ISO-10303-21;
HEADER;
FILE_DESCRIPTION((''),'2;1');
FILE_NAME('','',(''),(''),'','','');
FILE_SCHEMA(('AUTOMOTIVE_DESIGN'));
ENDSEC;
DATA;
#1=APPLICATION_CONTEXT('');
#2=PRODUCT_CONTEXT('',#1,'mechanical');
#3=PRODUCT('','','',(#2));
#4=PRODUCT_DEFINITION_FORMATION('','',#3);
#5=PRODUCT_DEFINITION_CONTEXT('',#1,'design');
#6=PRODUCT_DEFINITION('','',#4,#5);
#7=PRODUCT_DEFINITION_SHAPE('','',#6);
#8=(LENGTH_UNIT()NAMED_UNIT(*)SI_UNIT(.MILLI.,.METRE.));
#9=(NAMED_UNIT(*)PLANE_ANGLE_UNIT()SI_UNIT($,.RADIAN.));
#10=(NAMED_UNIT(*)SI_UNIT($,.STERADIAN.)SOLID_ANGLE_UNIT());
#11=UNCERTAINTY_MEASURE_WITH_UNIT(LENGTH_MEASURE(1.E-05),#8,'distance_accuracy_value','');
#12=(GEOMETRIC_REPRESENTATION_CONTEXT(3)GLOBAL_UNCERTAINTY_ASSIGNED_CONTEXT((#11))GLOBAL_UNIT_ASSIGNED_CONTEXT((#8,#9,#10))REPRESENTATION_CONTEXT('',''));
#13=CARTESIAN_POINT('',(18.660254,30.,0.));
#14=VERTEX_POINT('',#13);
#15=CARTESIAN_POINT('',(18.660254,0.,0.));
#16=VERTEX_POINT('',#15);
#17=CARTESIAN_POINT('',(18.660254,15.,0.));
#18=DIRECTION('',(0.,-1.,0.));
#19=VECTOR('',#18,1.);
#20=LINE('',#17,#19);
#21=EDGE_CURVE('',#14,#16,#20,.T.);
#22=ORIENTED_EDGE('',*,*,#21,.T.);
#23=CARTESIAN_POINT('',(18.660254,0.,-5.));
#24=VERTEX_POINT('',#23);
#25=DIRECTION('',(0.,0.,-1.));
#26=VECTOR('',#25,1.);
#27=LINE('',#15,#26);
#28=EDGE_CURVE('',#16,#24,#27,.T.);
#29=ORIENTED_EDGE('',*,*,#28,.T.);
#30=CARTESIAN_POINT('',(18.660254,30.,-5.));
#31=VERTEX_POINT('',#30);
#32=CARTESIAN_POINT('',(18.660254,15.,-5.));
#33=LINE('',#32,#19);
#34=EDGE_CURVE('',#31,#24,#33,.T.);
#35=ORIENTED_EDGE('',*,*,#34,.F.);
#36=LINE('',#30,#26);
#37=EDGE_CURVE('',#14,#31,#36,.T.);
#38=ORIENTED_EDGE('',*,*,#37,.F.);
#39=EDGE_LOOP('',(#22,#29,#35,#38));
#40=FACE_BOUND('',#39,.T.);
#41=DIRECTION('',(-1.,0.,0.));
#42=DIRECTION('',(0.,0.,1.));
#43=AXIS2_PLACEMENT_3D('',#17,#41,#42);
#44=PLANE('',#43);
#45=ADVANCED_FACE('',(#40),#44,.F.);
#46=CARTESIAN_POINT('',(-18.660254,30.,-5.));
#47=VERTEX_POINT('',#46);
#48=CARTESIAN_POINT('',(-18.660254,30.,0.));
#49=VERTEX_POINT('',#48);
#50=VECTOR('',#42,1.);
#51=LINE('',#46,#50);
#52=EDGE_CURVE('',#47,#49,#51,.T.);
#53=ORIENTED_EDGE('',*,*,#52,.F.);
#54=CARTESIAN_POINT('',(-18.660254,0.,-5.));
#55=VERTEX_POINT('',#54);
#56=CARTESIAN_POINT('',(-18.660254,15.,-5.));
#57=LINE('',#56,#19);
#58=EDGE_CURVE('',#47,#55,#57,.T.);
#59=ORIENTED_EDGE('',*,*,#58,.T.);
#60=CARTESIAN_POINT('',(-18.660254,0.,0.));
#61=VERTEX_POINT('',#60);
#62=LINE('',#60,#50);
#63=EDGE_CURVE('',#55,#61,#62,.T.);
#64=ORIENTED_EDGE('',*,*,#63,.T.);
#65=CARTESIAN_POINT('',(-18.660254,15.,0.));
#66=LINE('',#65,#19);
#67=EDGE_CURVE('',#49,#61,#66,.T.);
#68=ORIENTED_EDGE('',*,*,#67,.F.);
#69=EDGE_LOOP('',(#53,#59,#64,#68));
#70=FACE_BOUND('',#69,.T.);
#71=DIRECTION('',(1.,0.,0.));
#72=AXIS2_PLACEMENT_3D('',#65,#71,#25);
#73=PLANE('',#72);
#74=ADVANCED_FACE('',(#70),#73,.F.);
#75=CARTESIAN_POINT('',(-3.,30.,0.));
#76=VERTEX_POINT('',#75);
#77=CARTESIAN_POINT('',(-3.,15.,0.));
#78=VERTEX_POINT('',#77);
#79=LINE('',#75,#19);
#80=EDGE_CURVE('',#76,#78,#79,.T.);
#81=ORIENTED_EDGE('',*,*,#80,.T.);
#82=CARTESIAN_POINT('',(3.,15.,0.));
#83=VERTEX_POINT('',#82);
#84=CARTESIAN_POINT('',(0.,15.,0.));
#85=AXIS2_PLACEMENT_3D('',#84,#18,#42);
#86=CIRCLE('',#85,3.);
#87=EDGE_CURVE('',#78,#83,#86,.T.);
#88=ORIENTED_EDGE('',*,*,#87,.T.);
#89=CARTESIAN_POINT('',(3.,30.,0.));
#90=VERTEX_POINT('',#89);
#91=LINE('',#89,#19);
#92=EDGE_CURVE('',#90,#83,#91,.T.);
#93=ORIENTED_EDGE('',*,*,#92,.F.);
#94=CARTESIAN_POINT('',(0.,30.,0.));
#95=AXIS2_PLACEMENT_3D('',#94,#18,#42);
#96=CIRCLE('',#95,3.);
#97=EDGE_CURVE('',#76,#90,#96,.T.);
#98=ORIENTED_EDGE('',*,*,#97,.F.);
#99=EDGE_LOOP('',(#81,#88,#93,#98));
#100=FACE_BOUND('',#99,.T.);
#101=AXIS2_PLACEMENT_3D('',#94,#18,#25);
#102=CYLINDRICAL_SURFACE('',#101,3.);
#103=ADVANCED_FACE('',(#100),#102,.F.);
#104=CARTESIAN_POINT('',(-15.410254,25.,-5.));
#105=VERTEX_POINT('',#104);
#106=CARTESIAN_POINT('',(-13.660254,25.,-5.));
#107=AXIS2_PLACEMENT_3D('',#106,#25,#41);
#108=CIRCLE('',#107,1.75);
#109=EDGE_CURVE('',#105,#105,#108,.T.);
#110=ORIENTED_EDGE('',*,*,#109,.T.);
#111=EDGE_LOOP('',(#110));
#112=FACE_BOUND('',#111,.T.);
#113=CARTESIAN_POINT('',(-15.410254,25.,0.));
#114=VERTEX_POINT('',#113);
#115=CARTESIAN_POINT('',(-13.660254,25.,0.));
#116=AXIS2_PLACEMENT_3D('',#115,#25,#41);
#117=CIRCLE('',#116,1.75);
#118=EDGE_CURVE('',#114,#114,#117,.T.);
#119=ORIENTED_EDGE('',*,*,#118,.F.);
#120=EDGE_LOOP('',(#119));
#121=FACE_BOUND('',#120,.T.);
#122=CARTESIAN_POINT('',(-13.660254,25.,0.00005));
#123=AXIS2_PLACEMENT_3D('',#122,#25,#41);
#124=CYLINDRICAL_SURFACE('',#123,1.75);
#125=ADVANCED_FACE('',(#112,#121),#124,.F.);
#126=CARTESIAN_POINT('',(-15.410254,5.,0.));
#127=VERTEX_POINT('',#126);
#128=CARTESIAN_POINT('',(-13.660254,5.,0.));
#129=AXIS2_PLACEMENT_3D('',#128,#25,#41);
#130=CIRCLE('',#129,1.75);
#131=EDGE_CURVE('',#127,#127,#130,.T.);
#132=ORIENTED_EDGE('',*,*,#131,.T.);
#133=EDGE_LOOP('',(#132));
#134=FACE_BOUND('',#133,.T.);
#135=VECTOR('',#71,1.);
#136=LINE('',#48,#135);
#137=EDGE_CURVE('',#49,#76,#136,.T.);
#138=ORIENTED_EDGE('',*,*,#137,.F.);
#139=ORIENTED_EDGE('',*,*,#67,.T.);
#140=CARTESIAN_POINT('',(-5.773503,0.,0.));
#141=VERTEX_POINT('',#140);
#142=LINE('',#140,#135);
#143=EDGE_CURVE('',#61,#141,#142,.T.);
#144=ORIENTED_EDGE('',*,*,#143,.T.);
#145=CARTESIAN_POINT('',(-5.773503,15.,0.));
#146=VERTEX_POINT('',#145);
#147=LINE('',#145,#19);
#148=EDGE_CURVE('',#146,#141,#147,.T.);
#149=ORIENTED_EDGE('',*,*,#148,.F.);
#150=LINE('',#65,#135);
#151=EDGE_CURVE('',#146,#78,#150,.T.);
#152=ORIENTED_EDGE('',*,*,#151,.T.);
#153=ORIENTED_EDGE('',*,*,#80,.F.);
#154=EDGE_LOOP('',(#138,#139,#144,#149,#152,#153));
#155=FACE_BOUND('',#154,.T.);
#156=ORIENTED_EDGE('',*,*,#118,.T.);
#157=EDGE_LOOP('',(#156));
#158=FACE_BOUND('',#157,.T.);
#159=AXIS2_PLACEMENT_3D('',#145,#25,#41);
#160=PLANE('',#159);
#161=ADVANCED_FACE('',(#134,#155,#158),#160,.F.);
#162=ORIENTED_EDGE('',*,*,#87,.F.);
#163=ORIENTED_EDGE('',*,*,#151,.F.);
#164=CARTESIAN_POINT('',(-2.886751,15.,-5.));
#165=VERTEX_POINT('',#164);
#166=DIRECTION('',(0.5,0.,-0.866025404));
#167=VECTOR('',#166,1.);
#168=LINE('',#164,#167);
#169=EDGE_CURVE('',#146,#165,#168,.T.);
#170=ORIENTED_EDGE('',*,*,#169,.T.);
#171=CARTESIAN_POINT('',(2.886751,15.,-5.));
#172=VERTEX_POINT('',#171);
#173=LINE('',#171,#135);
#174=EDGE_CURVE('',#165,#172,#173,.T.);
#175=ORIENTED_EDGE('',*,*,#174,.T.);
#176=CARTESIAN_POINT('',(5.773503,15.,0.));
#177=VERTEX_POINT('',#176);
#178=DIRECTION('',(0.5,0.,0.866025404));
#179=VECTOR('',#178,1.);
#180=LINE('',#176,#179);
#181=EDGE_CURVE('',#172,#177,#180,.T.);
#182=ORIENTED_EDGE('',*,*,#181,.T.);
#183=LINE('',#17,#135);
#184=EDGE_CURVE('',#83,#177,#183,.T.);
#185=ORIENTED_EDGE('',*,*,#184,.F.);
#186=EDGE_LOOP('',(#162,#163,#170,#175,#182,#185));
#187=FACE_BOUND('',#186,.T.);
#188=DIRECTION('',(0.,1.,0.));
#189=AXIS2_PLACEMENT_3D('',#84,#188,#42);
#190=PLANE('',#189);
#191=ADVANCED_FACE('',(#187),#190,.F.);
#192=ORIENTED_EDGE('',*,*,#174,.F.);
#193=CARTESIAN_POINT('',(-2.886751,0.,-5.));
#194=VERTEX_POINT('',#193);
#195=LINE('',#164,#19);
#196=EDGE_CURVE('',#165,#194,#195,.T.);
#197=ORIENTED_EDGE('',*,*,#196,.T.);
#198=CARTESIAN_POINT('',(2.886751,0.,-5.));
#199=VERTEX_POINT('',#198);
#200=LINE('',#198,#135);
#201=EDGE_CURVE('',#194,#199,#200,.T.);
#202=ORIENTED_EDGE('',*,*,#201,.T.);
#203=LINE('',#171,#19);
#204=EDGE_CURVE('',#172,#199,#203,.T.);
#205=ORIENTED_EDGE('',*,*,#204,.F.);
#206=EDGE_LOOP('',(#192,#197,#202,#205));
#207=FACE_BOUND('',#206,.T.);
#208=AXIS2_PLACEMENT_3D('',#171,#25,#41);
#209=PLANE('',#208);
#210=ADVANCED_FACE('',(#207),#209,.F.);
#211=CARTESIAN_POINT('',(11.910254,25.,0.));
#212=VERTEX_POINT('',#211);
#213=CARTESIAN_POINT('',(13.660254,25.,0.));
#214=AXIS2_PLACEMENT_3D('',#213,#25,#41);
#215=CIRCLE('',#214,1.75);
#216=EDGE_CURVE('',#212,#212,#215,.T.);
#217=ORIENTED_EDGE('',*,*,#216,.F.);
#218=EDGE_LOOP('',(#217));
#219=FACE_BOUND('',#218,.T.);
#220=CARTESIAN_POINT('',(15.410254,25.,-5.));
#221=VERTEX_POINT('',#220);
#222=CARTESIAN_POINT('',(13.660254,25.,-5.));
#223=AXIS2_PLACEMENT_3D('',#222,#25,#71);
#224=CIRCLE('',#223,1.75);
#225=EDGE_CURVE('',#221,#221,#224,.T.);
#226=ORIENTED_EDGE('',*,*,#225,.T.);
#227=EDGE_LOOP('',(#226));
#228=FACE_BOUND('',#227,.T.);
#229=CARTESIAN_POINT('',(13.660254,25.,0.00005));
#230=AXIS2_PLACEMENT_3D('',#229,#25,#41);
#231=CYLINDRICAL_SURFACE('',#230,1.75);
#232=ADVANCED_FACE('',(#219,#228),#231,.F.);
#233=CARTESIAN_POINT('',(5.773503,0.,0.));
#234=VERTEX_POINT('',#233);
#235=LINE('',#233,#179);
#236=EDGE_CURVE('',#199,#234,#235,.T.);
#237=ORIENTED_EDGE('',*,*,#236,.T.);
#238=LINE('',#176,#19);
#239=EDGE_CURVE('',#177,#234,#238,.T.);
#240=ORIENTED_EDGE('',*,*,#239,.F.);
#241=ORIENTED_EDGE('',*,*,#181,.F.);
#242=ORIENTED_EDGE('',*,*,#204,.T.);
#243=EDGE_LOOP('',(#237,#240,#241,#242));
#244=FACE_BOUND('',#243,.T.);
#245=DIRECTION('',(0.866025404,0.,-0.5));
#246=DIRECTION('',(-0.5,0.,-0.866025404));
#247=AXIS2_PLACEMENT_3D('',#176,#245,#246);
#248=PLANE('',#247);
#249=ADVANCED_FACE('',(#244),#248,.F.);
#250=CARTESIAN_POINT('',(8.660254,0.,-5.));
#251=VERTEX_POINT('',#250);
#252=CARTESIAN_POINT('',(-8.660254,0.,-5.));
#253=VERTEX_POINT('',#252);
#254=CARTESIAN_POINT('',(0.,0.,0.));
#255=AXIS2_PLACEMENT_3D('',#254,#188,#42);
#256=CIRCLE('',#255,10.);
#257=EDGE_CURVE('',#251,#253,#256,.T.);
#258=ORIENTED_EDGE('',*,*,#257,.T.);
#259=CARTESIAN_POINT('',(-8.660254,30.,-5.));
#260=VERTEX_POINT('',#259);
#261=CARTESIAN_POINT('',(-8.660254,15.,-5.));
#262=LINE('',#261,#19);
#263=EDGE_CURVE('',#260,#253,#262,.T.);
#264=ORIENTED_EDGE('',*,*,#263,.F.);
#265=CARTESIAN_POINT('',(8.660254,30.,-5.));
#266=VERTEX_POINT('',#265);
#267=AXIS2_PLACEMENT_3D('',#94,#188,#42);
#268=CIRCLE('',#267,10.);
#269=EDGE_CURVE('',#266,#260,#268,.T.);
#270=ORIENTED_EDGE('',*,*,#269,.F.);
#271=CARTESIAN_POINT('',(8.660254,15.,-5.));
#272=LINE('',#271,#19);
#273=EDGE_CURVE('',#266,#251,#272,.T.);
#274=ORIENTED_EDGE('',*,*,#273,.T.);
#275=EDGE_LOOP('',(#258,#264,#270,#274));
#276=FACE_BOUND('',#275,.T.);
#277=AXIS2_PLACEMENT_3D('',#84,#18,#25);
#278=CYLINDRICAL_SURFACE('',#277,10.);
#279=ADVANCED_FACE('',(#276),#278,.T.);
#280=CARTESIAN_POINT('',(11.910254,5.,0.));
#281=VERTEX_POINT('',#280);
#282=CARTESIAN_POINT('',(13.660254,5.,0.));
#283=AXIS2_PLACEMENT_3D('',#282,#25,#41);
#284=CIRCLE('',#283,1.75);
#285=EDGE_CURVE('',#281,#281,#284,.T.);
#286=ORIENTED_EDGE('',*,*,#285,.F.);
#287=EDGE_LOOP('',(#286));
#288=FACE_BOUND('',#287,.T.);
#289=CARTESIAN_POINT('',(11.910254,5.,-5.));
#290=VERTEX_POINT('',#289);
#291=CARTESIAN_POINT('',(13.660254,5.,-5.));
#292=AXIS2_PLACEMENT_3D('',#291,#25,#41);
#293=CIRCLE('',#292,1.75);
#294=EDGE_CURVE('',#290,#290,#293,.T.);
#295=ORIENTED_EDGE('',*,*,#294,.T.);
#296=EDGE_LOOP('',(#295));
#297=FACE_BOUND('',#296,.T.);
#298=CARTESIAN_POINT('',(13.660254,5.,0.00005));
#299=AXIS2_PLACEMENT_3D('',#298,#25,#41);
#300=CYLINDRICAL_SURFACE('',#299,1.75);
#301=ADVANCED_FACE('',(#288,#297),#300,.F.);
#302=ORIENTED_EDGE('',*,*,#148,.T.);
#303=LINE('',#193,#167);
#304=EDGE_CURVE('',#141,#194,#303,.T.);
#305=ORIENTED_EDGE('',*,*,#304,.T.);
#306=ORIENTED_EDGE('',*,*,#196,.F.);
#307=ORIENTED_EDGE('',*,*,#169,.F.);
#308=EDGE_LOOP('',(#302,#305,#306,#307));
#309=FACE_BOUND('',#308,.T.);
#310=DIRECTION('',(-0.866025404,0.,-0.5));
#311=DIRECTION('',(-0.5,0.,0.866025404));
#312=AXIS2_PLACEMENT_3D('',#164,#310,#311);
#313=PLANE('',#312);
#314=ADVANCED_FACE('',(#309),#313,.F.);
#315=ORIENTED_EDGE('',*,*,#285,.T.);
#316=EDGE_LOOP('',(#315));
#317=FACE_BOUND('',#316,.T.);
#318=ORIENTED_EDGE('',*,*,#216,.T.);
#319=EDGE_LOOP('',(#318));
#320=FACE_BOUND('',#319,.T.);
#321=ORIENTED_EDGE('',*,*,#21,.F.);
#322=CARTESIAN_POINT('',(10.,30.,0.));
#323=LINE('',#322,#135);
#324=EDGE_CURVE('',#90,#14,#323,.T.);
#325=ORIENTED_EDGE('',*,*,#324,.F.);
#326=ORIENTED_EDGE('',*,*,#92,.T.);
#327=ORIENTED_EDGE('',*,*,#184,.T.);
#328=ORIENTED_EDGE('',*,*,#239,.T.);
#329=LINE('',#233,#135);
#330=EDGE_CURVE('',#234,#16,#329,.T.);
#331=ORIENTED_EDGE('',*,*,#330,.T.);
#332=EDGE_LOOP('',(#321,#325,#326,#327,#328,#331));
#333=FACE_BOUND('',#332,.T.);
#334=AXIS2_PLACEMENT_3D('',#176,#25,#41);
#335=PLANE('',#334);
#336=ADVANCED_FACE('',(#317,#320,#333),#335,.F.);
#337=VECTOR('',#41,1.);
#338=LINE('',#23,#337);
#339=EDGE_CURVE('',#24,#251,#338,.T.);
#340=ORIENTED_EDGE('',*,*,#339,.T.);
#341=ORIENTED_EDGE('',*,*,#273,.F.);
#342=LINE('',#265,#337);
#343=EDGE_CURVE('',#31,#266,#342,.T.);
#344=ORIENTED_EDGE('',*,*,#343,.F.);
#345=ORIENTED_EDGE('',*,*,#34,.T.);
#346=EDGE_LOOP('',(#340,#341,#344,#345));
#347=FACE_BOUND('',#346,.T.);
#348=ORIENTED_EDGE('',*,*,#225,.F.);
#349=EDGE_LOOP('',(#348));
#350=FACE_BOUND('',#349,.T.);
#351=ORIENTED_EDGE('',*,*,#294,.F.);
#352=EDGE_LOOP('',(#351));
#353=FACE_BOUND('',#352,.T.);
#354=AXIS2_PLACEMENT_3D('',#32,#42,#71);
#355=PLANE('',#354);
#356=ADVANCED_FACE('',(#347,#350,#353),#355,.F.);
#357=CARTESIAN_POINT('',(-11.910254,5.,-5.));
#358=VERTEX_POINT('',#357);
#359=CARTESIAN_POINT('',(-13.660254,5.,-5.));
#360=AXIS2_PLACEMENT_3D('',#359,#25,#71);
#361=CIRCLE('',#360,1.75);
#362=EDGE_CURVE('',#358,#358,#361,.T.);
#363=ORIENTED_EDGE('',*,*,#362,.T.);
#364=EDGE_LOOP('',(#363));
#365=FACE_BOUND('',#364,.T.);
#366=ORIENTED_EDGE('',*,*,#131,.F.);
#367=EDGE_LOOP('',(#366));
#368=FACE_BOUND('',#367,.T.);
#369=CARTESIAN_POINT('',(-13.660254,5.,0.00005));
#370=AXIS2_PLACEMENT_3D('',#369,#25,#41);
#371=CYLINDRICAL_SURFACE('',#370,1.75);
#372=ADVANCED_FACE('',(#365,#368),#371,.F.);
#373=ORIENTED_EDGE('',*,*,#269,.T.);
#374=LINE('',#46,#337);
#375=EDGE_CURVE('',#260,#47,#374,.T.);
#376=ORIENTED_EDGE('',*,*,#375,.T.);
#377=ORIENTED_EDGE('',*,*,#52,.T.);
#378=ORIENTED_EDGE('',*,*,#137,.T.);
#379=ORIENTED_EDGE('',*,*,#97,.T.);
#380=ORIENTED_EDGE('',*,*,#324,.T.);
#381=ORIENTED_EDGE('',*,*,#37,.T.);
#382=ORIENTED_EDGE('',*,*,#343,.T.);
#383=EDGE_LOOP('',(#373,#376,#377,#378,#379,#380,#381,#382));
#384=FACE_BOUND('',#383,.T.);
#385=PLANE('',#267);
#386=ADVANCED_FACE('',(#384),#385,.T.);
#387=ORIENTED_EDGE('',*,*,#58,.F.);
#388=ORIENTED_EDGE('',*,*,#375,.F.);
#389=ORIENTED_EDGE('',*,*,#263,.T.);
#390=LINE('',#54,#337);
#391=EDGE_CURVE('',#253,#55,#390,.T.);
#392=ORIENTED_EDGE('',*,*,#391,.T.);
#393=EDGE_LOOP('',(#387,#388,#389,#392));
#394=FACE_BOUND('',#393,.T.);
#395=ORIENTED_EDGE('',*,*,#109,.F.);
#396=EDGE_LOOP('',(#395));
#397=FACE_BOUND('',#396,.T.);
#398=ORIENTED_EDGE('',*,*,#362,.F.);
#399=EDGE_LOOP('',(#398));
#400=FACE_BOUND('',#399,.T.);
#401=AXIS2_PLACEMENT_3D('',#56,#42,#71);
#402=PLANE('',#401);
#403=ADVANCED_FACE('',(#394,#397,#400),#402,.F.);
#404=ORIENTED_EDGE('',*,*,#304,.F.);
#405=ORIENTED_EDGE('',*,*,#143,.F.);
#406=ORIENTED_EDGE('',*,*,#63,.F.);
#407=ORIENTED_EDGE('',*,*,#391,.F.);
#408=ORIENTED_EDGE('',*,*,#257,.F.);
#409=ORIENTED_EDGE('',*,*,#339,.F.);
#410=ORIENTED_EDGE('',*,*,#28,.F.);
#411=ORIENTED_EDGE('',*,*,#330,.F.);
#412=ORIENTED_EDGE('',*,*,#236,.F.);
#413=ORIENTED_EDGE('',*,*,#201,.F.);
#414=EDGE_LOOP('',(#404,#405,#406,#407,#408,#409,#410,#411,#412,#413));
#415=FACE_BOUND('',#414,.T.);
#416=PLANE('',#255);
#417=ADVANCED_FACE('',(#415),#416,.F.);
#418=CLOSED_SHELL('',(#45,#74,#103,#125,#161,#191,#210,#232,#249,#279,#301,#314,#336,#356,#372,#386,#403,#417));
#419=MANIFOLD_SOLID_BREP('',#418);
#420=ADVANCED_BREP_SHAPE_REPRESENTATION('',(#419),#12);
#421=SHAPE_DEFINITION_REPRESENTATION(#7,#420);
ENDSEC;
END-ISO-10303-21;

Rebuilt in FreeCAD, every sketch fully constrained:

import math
import FreeCAD as App
import Part
import Sketcher
Q = App.Units.Quantity

doc = App.newDocument("Part")
body = doc.addObject("PartDesign::Body", "Body")

# Sketch on XZ plane
sketch1 = body.newObject("Sketcher::SketchObject", "Sketch")
sketch1.AttachmentSupport = (doc.getObject("XZ_Plane"), [""])
sketch1.MapMode = "FlatFace"
sketch1.addGeometry([
    Part.LineSegment(App.Vector(-19, 0, 0), App.Vector(-6, 0, 0)),  # 0
    Part.LineSegment(App.Vector(-6, 0, 0), App.Vector(-3, -5, 0)),  # 1
    Part.LineSegment(App.Vector(-3, -5, 0), App.Vector(3, -5, 0)),  # 2
    Part.LineSegment(App.Vector(3, -5, 0), App.Vector(6, 0, 0)),  # 3
    Part.LineSegment(App.Vector(6, 0, 0), App.Vector(19, 0, 0)),  # 4
    Part.LineSegment(App.Vector(19, 0, 0), App.Vector(19, -5, 0)),  # 5
    Part.LineSegment(App.Vector(19, -5, 0), App.Vector(9, -5, 0)),  # 6
    Part.ArcOfCircle(Part.Circle(App.Vector(0, 0, 0), App.Vector(0, 0, 1), 10), math.radians(-150), math.radians(-30)),  # 7
    Part.LineSegment(App.Vector(-9, -5, 0), App.Vector(-19, -5, 0)),  # 8
    Part.LineSegment(App.Vector(-19, -5, 0), App.Vector(-19, 0, 0)),  # 9
], False)
sketch1.addConstraint([
    Sketcher.Constraint("Coincident", 0, 2, 1, 1),
    Sketcher.Constraint("Coincident", 1, 2, 2, 1),
    Sketcher.Constraint("Coincident", 2, 2, 3, 1),
    Sketcher.Constraint("Coincident", 3, 2, 4, 1),
    Sketcher.Constraint("Coincident", 4, 2, 5, 1),
    Sketcher.Constraint("Coincident", 5, 2, 6, 1),
    Sketcher.Constraint("Coincident", 6, 2, 7, 2),
    Sketcher.Constraint("Coincident", 7, 1, 8, 1),
    Sketcher.Constraint("Coincident", 8, 2, 9, 1),
    Sketcher.Constraint("Coincident", 9, 2, 0, 1),
    Sketcher.Constraint("Horizontal", 0),
    Sketcher.Constraint("Horizontal", 2),
    Sketcher.Constraint("Horizontal", 4),
    Sketcher.Constraint("Vertical", 5),
    Sketcher.Constraint("Horizontal", 6),
    Sketcher.Constraint("Horizontal", 8),
    Sketcher.Constraint("Vertical", 9),
    Sketcher.Constraint("Coincident", 7, 3, -1, 1),
    Sketcher.Constraint("Symmetric", 0, 2, 3, 2, -1, 1),
    Sketcher.Constraint("Symmetric", 5, 2, 8, 2, -2),
    Sketcher.Constraint("PointOnObject", 0, 2, -1),
    Sketcher.Constraint("Horizontal", 2, 2, 5, 2),
    Sketcher.Constraint("Equal", 1, 3),
    Sketcher.Constraint("Radius", 7, Q("10 mm")),
    Sketcher.Constraint("DistanceX", 6, 2, 6, 1, Q("10 mm")),
    Sketcher.Constraint("DistanceY", 5, 2, 5, 1, Q("5 mm")),
    Sketcher.Constraint("Angle", 1, Q("-60 deg")),
    Sketcher.Constraint("DistanceX", 0, 1, 0, 2, Q("12.886751 mm")),
])
pad1 = body.newObject("PartDesign::Pad", "Pad")
pad1.Profile = sketch1
pad1.Length = 15
pad1.Reversed = True

# Sketch on XZ plane
sketch2 = body.newObject("Sketcher::SketchObject", "Sketch001")
sketch2.AttachmentSupport = (doc.getObject("XZ_Plane"), [""])
sketch2.MapMode = "FlatFace"
sketch2.AttachmentOffset = App.Placement(App.Vector(0, 0, -15), App.Rotation())
sketch2.addGeometry([
    Part.LineSegment(App.Vector(-8.7, -5, 0), App.Vector(-18.7, -5, 0)),  # 0
    Part.LineSegment(App.Vector(-18.7, -5, 0), App.Vector(-18.7, 0, 0)),  # 1
    Part.LineSegment(App.Vector(-18.7, 0, 0), App.Vector(-3, 0, 0)),  # 2
    Part.ArcOfCircle(Part.Circle(App.Vector(0, 0, 0), App.Vector(0, 0, 1), 3), math.radians(180), math.radians(360)),  # 3
    Part.LineSegment(App.Vector(3, 0, 0), App.Vector(18.7, 0, 0)),  # 4
    Part.LineSegment(App.Vector(18.7, 0, 0), App.Vector(18.7, -5, 0)),  # 5
    Part.LineSegment(App.Vector(18.7, -5, 0), App.Vector(8.7, -5, 0)),  # 6
    Part.ArcOfCircle(Part.Circle(App.Vector(0, 0, 0), App.Vector(0, 0, 1), 10), math.radians(-150), math.radians(-30)),  # 7
], False)
sketch2.addConstraint([
    Sketcher.Constraint("Coincident", 0, 2, 1, 1),
    Sketcher.Constraint("Coincident", 1, 2, 2, 1),
    Sketcher.Constraint("Coincident", 2, 2, 3, 1),
    Sketcher.Constraint("Coincident", 3, 2, 4, 1),
    Sketcher.Constraint("Coincident", 4, 2, 5, 1),
    Sketcher.Constraint("Coincident", 5, 2, 6, 1),
    Sketcher.Constraint("Coincident", 6, 2, 7, 2),
    Sketcher.Constraint("Coincident", 7, 1, 0, 1),
    Sketcher.Constraint("Horizontal", 0),
    Sketcher.Constraint("Vertical", 1),
    Sketcher.Constraint("Horizontal", 2),
    Sketcher.Constraint("Horizontal", 4),
    Sketcher.Constraint("Vertical", 5),
    Sketcher.Constraint("Horizontal", 6),
    Sketcher.Constraint("Coincident", 3, 3, -1, 1),
    Sketcher.Constraint("Coincident", 7, 3, -1, 1),
    Sketcher.Constraint("Symmetric", 1, 2, 4, 2, -1, 1),
    Sketcher.Constraint("PointOnObject", 1, 2, -1),
    Sketcher.Constraint("Horizontal", 0, 2, 5, 2),
    Sketcher.Constraint("Radius", 3, Q("3 mm")),
    Sketcher.Constraint("Radius", 7, Q("10 mm")),
    Sketcher.Constraint("DistanceX", 0, 2, 0, 1, Q("10 mm")),
    Sketcher.Constraint("DistanceY", 1, 1, 1, 2, Q("5 mm")),
])
pad2 = body.newObject("PartDesign::Pad", "Pad001")
pad2.Profile = sketch2
pad2.Length = 15
pad2.Reversed = True

# Sketch on XY plane
sketch3 = body.newObject("Sketcher::SketchObject", "Sketch002")
sketch3.AttachmentSupport = (doc.getObject("XY_Plane"), [""])
sketch3.MapMode = "FlatFace"
sketch3.AttachmentOffset = App.Placement(App.Vector(0, 0, -5), App.Rotation())
sketch3.addGeometry([
    Part.Circle(App.Vector(13.7, 5, 0), App.Vector(0, 0, 1), 1.8),
    Part.Circle(App.Vector(13.7, 25, 0), App.Vector(0, 0, 1), 1.8),
    Part.Circle(App.Vector(-13.7, 5, 0), App.Vector(0, 0, 1), 1.8),
    Part.Circle(App.Vector(-13.7, 25, 0), App.Vector(0, 0, 1), 1.8),
], False)
sketch3.addConstraint([
    Sketcher.Constraint("Equal", 0, 1),
    Sketcher.Constraint("Equal", 1, 2),
    Sketcher.Constraint("Equal", 2, 3),
    Sketcher.Constraint("Symmetric", 0, 3, 2, 3, -2),
    Sketcher.Constraint("Symmetric", 1, 3, 3, 3, -2),
    Sketcher.Constraint("Vertical", 0, 3, 1, 3),
    Sketcher.Constraint("Diameter", 0, Q("3.5 mm")),
    Sketcher.Constraint("DistanceY", -1, 1, 0, 3, Q("5 mm")),
    Sketcher.Constraint("DistanceY", -1, 1, 1, 3, Q("25 mm")),
    Sketcher.Constraint("DistanceX", 2, 3, 0, 3, Q("27.320508 mm")),
])
pocket1 = body.newObject("PartDesign::Pocket", "Pocket")
pocket1.Profile = sketch3
pocket1.Type = "ThroughAll"
pocket1.Reversed = True

doc.recompute()
